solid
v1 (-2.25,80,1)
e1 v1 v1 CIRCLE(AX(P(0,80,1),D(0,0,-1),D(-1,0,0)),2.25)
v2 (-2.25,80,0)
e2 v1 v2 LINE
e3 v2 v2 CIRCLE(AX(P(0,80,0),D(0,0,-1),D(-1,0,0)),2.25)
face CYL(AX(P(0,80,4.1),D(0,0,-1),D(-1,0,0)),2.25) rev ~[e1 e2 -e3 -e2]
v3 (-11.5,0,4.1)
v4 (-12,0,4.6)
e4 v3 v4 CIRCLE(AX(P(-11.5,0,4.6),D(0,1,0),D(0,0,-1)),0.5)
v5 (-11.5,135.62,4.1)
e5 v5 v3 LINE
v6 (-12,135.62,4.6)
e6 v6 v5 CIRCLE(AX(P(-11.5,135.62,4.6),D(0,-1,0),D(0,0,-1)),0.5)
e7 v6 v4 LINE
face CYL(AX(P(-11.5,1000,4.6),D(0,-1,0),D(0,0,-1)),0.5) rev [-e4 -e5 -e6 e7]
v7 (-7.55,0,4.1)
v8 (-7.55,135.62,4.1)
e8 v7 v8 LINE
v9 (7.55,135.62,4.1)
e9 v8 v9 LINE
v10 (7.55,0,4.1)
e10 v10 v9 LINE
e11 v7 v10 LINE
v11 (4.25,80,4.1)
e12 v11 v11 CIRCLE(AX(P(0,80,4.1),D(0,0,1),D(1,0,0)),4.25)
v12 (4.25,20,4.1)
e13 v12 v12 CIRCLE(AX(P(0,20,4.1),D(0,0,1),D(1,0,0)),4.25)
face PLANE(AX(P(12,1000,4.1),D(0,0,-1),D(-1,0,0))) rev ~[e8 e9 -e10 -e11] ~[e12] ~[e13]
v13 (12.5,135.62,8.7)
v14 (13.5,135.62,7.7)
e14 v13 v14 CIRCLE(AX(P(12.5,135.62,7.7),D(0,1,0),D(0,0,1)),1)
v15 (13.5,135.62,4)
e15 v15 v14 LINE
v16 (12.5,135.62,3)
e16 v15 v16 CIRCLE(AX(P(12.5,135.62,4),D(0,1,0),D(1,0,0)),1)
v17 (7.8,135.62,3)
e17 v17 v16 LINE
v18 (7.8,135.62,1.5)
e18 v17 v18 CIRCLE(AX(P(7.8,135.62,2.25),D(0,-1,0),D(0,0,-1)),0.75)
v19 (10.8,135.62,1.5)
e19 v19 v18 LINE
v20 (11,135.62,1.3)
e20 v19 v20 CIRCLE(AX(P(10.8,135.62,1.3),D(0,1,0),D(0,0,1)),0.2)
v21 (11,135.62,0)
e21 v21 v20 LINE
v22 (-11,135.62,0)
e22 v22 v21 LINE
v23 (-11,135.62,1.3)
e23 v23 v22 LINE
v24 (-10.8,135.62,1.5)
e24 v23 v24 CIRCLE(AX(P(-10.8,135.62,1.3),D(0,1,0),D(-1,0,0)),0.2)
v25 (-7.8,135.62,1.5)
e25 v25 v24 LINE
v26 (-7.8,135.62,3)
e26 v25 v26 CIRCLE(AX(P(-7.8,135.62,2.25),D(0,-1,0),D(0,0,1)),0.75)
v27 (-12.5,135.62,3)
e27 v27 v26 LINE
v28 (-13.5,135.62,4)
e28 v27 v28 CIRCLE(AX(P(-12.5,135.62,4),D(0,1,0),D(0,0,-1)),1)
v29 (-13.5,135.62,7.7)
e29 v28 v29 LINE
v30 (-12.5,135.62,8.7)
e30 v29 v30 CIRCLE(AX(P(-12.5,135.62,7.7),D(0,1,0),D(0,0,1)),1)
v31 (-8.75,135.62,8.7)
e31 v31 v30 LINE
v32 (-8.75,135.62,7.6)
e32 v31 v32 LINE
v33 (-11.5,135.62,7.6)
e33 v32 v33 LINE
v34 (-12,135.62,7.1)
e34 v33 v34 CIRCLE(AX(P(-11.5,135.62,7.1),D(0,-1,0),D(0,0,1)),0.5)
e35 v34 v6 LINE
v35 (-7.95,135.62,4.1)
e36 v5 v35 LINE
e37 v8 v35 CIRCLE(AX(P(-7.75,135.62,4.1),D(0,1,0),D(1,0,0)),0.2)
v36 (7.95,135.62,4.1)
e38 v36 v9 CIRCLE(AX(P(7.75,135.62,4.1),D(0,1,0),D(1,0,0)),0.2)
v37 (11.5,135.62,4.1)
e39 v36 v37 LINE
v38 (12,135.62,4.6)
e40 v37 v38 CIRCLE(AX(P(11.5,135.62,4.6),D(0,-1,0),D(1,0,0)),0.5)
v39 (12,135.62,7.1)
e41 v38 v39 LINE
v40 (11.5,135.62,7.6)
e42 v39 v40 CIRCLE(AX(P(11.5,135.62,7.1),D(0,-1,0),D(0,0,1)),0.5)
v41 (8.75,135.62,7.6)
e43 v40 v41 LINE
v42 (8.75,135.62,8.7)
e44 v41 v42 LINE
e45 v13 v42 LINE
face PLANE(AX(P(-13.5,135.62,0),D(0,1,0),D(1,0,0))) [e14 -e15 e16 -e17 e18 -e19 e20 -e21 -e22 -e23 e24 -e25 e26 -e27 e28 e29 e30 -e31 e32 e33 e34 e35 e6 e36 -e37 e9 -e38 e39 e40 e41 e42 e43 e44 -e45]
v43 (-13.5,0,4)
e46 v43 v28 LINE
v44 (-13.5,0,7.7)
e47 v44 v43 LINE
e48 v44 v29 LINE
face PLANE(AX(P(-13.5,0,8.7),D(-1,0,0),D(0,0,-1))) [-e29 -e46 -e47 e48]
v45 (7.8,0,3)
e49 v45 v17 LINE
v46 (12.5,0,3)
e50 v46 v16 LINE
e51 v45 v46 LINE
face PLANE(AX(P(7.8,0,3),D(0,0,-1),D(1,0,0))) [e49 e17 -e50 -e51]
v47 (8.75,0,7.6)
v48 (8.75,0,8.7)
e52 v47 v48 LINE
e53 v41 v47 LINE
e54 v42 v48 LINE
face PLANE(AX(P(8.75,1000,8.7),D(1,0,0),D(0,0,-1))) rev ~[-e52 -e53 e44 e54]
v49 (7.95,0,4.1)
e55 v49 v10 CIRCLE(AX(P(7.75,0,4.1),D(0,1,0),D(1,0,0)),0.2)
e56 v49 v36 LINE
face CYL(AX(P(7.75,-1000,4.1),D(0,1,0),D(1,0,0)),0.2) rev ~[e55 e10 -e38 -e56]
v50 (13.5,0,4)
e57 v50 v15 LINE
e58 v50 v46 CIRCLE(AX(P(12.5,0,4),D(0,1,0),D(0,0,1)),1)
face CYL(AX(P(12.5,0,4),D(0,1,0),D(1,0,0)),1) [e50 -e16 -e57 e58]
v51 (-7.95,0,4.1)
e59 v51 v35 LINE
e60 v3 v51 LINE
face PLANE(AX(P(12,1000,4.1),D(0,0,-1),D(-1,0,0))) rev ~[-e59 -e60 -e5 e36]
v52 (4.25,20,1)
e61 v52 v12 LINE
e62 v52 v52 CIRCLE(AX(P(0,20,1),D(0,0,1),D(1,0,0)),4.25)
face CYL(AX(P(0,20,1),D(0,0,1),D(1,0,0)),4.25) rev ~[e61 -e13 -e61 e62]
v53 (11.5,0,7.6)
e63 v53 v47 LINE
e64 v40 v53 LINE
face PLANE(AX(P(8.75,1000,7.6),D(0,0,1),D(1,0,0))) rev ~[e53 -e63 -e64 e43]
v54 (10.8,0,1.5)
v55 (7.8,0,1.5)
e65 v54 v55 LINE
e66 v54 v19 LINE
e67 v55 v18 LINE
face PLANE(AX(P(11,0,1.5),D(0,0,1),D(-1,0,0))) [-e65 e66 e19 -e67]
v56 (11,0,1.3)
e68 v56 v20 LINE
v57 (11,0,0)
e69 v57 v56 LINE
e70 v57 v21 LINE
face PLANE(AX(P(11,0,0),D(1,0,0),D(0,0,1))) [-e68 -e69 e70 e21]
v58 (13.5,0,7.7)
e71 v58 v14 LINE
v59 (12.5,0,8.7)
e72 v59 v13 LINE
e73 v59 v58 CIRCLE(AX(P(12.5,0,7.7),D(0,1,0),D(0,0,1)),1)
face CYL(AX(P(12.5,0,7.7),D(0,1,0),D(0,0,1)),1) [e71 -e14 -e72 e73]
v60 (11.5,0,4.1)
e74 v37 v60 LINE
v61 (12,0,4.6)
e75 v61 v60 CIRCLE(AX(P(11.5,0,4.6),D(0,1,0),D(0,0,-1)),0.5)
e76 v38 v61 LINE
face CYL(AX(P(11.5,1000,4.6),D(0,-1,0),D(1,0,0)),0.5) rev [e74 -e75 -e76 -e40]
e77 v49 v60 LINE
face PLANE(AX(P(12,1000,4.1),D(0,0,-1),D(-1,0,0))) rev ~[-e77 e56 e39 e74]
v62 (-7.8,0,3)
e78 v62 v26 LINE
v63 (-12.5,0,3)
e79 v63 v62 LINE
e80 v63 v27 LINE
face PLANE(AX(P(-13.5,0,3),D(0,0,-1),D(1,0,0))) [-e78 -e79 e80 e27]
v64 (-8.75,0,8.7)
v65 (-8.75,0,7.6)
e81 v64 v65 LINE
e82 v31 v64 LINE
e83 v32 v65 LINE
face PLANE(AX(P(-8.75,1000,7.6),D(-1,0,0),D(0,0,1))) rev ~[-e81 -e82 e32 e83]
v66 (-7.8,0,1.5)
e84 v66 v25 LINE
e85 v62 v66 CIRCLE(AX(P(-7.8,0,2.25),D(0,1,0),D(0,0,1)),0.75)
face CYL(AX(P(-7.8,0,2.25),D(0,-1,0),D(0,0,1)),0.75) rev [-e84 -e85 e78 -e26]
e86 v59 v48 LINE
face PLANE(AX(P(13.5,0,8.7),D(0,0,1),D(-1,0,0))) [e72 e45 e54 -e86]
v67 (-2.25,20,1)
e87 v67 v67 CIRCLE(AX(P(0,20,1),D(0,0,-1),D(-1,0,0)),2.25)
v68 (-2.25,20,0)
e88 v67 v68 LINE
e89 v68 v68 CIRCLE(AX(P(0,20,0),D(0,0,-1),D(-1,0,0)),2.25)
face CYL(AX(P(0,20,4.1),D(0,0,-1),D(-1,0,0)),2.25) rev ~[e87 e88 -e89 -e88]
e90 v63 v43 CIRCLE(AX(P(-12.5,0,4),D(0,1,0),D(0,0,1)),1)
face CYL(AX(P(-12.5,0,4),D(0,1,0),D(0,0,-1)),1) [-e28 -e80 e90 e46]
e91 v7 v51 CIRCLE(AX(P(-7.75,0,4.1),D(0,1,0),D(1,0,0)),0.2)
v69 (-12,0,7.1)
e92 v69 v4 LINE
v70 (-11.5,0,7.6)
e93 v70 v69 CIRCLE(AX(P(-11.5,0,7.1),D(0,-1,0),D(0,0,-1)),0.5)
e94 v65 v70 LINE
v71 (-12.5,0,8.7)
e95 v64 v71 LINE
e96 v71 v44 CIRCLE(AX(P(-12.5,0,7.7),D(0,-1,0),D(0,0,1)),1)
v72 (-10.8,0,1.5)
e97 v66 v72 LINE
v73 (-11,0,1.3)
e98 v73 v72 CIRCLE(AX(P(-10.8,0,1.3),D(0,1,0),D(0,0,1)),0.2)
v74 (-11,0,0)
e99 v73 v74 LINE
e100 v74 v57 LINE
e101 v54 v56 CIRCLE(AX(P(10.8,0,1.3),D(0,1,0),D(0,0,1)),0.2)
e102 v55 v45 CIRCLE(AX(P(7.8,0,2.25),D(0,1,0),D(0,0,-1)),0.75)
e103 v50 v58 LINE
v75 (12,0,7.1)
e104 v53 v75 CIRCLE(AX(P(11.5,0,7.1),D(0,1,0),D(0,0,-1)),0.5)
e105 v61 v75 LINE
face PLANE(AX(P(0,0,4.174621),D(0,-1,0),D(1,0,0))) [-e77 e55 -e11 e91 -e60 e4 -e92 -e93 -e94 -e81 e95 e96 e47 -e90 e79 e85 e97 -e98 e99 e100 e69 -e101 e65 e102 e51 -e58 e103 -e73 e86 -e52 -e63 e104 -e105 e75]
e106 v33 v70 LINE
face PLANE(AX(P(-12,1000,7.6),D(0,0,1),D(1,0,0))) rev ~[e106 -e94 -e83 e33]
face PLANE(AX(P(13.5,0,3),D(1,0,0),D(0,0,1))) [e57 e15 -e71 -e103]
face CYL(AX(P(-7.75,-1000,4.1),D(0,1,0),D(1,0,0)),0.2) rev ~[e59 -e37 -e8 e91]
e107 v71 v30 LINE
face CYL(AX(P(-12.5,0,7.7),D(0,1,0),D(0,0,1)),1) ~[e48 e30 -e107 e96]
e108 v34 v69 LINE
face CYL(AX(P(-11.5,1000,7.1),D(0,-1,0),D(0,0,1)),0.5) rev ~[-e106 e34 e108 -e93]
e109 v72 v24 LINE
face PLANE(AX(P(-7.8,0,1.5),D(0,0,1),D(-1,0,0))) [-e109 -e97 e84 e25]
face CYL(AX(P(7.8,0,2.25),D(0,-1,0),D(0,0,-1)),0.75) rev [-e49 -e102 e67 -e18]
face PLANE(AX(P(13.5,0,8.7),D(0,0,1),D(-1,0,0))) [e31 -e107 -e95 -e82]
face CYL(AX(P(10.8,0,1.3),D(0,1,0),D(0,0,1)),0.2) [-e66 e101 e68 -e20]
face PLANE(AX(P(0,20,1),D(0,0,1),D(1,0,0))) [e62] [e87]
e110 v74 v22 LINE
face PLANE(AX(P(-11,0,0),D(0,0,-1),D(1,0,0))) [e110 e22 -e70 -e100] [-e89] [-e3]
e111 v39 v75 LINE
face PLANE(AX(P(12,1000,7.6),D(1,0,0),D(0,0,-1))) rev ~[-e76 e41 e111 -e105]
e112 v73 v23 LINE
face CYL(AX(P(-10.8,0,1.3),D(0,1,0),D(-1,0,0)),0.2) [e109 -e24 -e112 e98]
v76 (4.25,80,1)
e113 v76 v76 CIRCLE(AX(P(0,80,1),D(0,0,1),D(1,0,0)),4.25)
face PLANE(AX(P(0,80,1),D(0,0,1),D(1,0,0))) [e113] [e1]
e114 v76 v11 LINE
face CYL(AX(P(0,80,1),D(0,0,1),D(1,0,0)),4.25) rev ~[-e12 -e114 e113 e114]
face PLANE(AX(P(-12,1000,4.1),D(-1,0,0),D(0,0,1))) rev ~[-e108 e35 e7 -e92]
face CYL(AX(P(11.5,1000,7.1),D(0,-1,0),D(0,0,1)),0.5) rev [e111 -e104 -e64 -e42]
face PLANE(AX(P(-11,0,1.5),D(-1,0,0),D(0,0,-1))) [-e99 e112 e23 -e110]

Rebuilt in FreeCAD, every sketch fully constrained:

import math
import FreeCAD as App
import Part
import Sketcher


def edges_at(feature, points):
    """Names of the edges that pass closest to the given points."""
    edges = feature.Shape.Edges
    near = lambda p: min(range(len(edges)), key=lambda i: edges[i].distToShape(Part.Vertex(*p))[0])
    return sorted({f"Edge{near(p) + 1}" for p in points})


def add_polygon(sketch, points):
    """Adds a closed chain of lines whose ends are joined by coincident constraints."""
    first, n = sketch.GeometryCount, len(points)
    for a, b in zip(points, points[1:] + points[:1]):
        sketch.addGeometry(Part.LineSegment(App.Vector(*a, 0), App.Vector(*b, 0)), False)
    for i in range(n):
        sketch.addConstraint(Sketcher.Constraint("Coincident", first + i, 2, first + (i + 1) % n, 1))

doc = App.newDocument("Part")
body = doc.addObject("PartDesign::Body", "Body")

# Sketch on XZ plane
sketch1 = doc.addObject("Sketcher::SketchObject", "Sketch")
body.addObject(sketch1)
sketch1.AttachmentSupport = (doc.XZ_Plane, [""])
sketch1.MapMode = "FlatFace"
sketch1.addGeometry([
    Part.LineSegment(App.Vector(13.5, 8.7, 0), App.Vector(-13.5, 8.7, 0)),  # 0
    Part.LineSegment(App.Vector(-13.5, 8.7, 0), App.Vector(-13.5, 3, 0)),  # 1
    Part.LineSegment(App.Vector(-13.5, 3, 0), App.Vector(-7.8, 3, 0)),  # 2
    Part.ArcOfCircle(Part.Circle(App.Vector(-7.8, 2.2, 0), App.Vector(0, 0, 1), 0.8), math.radians(-90), math.radians(90)),  # 3
    Part.LineSegment(App.Vector(-7.8, 1.5, 0), App.Vector(-11, 1.5, 0)),  # 4
    Part.LineSegment(App.Vector(-11, 1.5, 0), App.Vector(-11, 0, 0)),  # 5
    Part.LineSegment(App.Vector(-11, 0, 0), App.Vector(11, 0, 0)),  # 6
    Part.LineSegment(App.Vector(11, 0, 0), App.Vector(11, 1.5, 0)),  # 7
    Part.LineSegment(App.Vector(11, 1.5, 0), App.Vector(7.8, 1.5, 0)),  # 8
    Part.ArcOfCircle(Part.Circle(App.Vector(7.8, 2.2, 0), App.Vector(0, 0, 1), 0.8), math.radians(90), math.radians(270)),  # 9
    Part.LineSegment(App.Vector(7.8, 3, 0), App.Vector(13.5, 3, 0)),  # 10
    Part.LineSegment(App.Vector(13.5, 3, 0), App.Vector(13.5, 8.7, 0)),  # 11
], False)
sketch1.addConstraint([
    Sketcher.Constraint("Coincident", 0, 2, 1, 1),
    Sketcher.Constraint("Coincident", 1, 2, 2, 1),
    Sketcher.Constraint("Tangent", 2, 2, 3, 2),
    Sketcher.Constraint("Tangent", 3, 1, 4, 1),
    Sketcher.Constraint("Coincident", 4, 2, 5, 1),
    Sketcher.Constraint("Coincident", 5, 2, 6, 1),
    Sketcher.Constraint("Coincident", 6, 2, 7, 1),
    Sketcher.Constraint("Coincident", 7, 2, 8, 1),
    Sketcher.Constraint("Tangent", 8, 2, 9, 2),
    Sketcher.Constraint("Tangent", 9, 1, 10, 1),
    Sketcher.Constraint("Coincident", 10, 2, 11, 1),
    Sketcher.Constraint("Coincident", 11, 2, 0, 1),
    Sketcher.Constraint("Horizontal", 0),
    Sketcher.Constraint("Vertical", 1),
    Sketcher.Constraint("Horizontal", 2),
    Sketcher.Constraint("Horizontal", 4),
    Sketcher.Constraint("Vertical", 5),
    Sketcher.Constraint("Horizontal", 6),
    Sketcher.Constraint("Vertical", 7),
    Sketcher.Constraint("Horizontal", 8),
    Sketcher.Constraint("Horizontal", 10),
    Sketcher.Constraint("Vertical", 11),
    Sketcher.Constraint("Equal", 3, 9),
    Sketcher.Constraint("Symmetric", 5, 2, 6, 2, -1, 1),
    Sketcher.Constraint("Symmetric", 3, 3, 9, 3, -2),
    Sketcher.Constraint("Equal", 2, 10),
    Sketcher.Constraint("Equal", 10, 1),
    Sketcher.Constraint("DistanceX", 0, 2, 0, 1, 27.0),
    Sketcher.Constraint("DistanceX", 6, 1, 6, 2, 22.0),
    Sketcher.Constraint("Radius", 3, 0.75),
    Sketcher.Constraint("DistanceX", 2, 1, 2, 2, 5.7),
    Sketcher.Constraint("DistanceY", 5, 2, 5, 1, 1.5),
])
pad1 = doc.addObject("PartDesign::Pad", "Pad")
body.addObject(pad1)
pad1.Profile = sketch1
pad1.Length = 1000
pad1.Reversed = True

# Sketch on XZ plane
sketch2 = doc.addObject("Sketcher::SketchObject", "Sketch001")
body.addObject(sketch2)
sketch2.AttachmentSupport = (doc.XZ_Plane, [""])
sketch2.MapMode = "FlatFace"
sketch2.AttachmentOffset = App.Placement(App.Vector(0, 0, -1000), App.Rotation())
add_polygon(sketch2, [(-8.8, 8.7), (8.8, 8.7), (8.8, 7.6), (12, 7.6), (12, 4.1), (-12, 4.1), (-12, 7.6), (-8.8, 7.6)])  # lines 0-7
sketch2.addConstraint([
    Sketcher.Constraint("Horizontal", 0),
    Sketcher.Constraint("Vertical", 1),
    Sketcher.Constraint("Horizontal", 2),
    Sketcher.Constraint("Vertical", 3),
    Sketcher.Constraint("Horizontal", 4),
    Sketcher.Constraint("Vertical", 5),
    Sketcher.Constraint("Horizontal", 6),
    Sketcher.Constraint("Vertical", 7),
    Sketcher.Constraint("Symmetric", 2, 2, 5, 2, -2),
    Sketcher.Constraint("Equal", 2, 6),
    Sketcher.Constraint("DistanceX", 4, 2, 4, 1, 24.0),
    Sketcher.Constraint("DistanceX", 0, 1, 0, 2, 17.5),
    Sketcher.Constraint("DistanceY", 1, 2, 1, 1, 1.1),
    Sketcher.Constraint("DistanceY", 3, 2, 3, 1, 3.5),
    Sketcher.Constraint("DistanceY", -1, 1, 0, 2, 8.7),
])
pocket1 = doc.addObject("PartDesign::Pocket", "Pocket")
body.addObject(pocket1)
pocket1.Profile = sketch2
pocket1.Type = "ThroughAll"
pocket1.Reversed = True

# Sketch on XY plane
sketch3 = doc.addObject("Sketcher::SketchObject", "Sketch002")
body.addObject(sketch3)
sketch3.AttachmentSupport = (doc.XY_Plane, [""])
sketch3.MapMode = "FlatFace"
sketch3.AttachmentOffset = App.Placement(App.Vector(0, 0, 4.1), App.Rotation())
sketch3.addGeometry([
    Part.Circle(App.Vector(0, 980, 0), App.Vector(0, 0, 1), 2.2),  # 0
    Part.Circle(App.Vector(0, 920, 0), App.Vector(0, 0, 1), 2.2),  # 1
    Part.Circle(App.Vector(0, 860, 0), App.Vector(0, 0, 1), 2.2),  # 2
    Part.Circle(App.Vector(0, 800, 0), App.Vector(0, 0, 1), 2.2),  # 3
    Part.Circle(App.Vector(0, 740, 0), App.Vector(0, 0, 1), 2.2),  # 4
    Part.Circle(App.Vector(0, 680, 0), App.Vector(0, 0, 1), 2.2),  # 5
    Part.Circle(App.Vector(0, 620, 0), App.Vector(0, 0, 1), 2.2),  # 6
    Part.Circle(App.Vector(0, 560, 0), App.Vector(0, 0, 1), 2.2),  # 7
    Part.Circle(App.Vector(0, 500, 0), App.Vector(0, 0, 1), 2.2),  # 8
    Part.Circle(App.Vector(0, 440, 0), App.Vector(0, 0, 1), 2.2),  # 9
    Part.Circle(App.Vector(0, 380, 0), App.Vector(0, 0, 1), 2.2),  # 10
    Part.Circle(App.Vector(0, 320, 0), App.Vector(0, 0, 1), 2.2),  # 11
    Part.Circle(App.Vector(0, 260, 0), App.Vector(0, 0, 1), 2.2),  # 12
    Part.Circle(App.Vector(0, 200, 0), App.Vector(0, 0, 1), 2.2),  # 13
    Part.Circle(App.Vector(0, 140, 0), App.Vector(0, 0, 1), 2.2),  # 14
    Part.Circle(App.Vector(0, 80, 0), App.Vector(0, 0, 1), 2.2),  # 15
    Part.Circle(App.Vector(0, 20, 0), App.Vector(0, 0, 1), 2.2),  # 16
], False)
sketch3.addConstraint([
    Sketcher.Constraint("Equal", 0, 1),
    Sketcher.Constraint("Equal", 1, 2),
    Sketcher.Constraint("Equal", 2, 3),
    Sketcher.Constraint("Equal", 3, 4),
    Sketcher.Constraint("Equal", 4, 5),
    Sketcher.Constraint("Equal", 5, 6),
    Sketcher.Constraint("Equal", 6, 7),
    Sketcher.Constraint("Equal", 7, 8),
    Sketcher.Constraint("Equal", 8, 9),
    Sketcher.Constraint("Equal", 9, 10),
    Sketcher.Constraint("Equal", 10, 11),
    Sketcher.Constraint("Equal", 11, 12),
    Sketcher.Constraint("Equal", 12, 13),
    Sketcher.Constraint("Equal", 13, 14),
    Sketcher.Constraint("Equal", 14, 15),
    Sketcher.Constraint("Equal", 15, 16),
    Sketcher.Constraint("PointOnObject", 0, 3, -2),
    Sketcher.Constraint("PointOnObject", 1, 3, -2),
    Sketcher.Constraint("PointOnObject", 2, 3, -2),
    Sketcher.Constraint("PointOnObject", 3, 3, -2),
    Sketcher.Constraint("PointOnObject", 4, 3, -2),
    Sketcher.Constraint("PointOnObject", 5, 3, -2),
    Sketcher.Constraint("PointOnObject", 6, 3, -2),
    Sketcher.Constraint("PointOnObject", 7, 3, -2),
    Sketcher.Constraint("PointOnObject", 8, 3, -2),
    Sketcher.Constraint("PointOnObject", 9, 3, -2),
    Sketcher.Constraint("PointOnObject", 10, 3, -2),
    Sketcher.Constraint("PointOnObject", 11, 3, -2),
    Sketcher.Constraint("PointOnObject", 12, 3, -2),
    Sketcher.Constraint("PointOnObject", 13, 3, -2),
    Sketcher.Constraint("PointOnObject", 14, 3, -2),
    Sketcher.Constraint("PointOnObject", 15, 3, -2),
    Sketcher.Constraint("PointOnObject", 16, 3, -2),
    Sketcher.Constraint("Diameter", 0, 4.5),
    Sketcher.Constraint("DistanceY", -1, 1, 0, 3, 980.0),
    Sketcher.Constraint("DistanceY", -1, 1, 1, 3, 920.0),
    Sketcher.Constraint("DistanceY", -1, 1, 2, 3, 860.0),
    Sketcher.Constraint("DistanceY", -1, 1, 3, 3, 800.0),
    Sketcher.Constraint("DistanceY", -1, 1, 4, 3, 740.0),
    Sketcher.Constraint("DistanceY", -1, 1, 5, 3, 680.0),
    Sketcher.Constraint("DistanceY", -1, 1, 6, 3, 620.0),
    Sketcher.Constraint("DistanceY", -1, 1, 7, 3, 560.0),
    Sketcher.Constraint("DistanceY", -1, 1, 8, 3, 500.0),
    Sketcher.Constraint("DistanceY", -1, 1, 9, 3, 440.0),
    Sketcher.Constraint("DistanceY", -1, 1, 10, 3, 380.0),
    Sketcher.Constraint("DistanceY", -1, 1, 11, 3, 320.0),
    Sketcher.Constraint("DistanceY", -1, 1, 12, 3, 260.0),
    Sketcher.Constraint("DistanceY", -1, 1, 13, 3, 200.0),
    Sketcher.Constraint("DistanceY", -1, 1, 14, 3, 140.0),
    Sketcher.Constraint("DistanceY", -1, 1, 15, 3, 80.0),
    Sketcher.Constraint("DistanceY", -1, 1, 16, 3, 20.0),
])
doc.recompute()
hole = doc.addObject("PartDesign::Hole", "Hole")
body.addObject(hole)
hole.Profile = sketch3
hole.ThreadType = "None"
hole.Diameter = 4.5
hole.DepthType = "Dimension"
hole.Depth = 4.1
hole.DrillPoint = "Flat"
hole.HoleCutType = "Counterbore"
hole.HoleCutDiameter = 8.5
hole.HoleCutDepth = 3.1

# Sketch on XZ plane
sketch4 = doc.addObject("Sketcher::SketchObject", "Sketch003")
body.addObject(sketch4)
sketch4.AttachmentSupport = (doc.XZ_Plane, [""])
sketch4.MapMode = "FlatFace"
sketch4.addGeometry([
    Part.Circle(App.Vector(-7.75, 4.1, 0), App.Vector(0, 0, 1), 0.2),
    Part.Circle(App.Vector(7.75, 4.1, 0), App.Vector(0, 0, 1), 0.2),
], False)
sketch4.addConstraint([
    Sketcher.Constraint("Equal", 0, 1),
    Sketcher.Constraint("Symmetric", 0, 3, 1, 3, -2),
    Sketcher.Constraint("Diameter", 0, 0.4),
    Sketcher.Constraint("DistanceY", -1, 1, 0, 3, 4.1),
    Sketcher.Constraint("DistanceX", 0, 3, 1, 3, 15.5),
])
doc.recompute()
hole2 = doc.addObject("PartDesign::Hole", "Hole001")
body.addObject(hole2)
hole2.Profile = sketch4
hole2.ThreadType = "None"
hole2.Diameter = 0.4
hole2.DepthType = "Dimension"
hole2.Depth = 1000
hole2.DrillPoint = "Flat"
doc.recompute()

fillet = doc.addObject("PartDesign::Fillet", "Fillet")
body.addObject(fillet)
fillet.Base = (hole2, edges_at(hole2, [(11, 500, 1.5), (-11, 500, 1.5)]))
fillet.Radius = 0.2
doc.recompute()

fillet2 = doc.addObject("PartDesign::Fillet", "Fillet001")
body.addObject(fillet2)
fillet2.Base = (fillet, edges_at(fillet, [
    (-12, 500, 7.6),
    (-12, 500, 4.1),
    (12, 500, 4.1),
    (12, 500, 7.6),
]))
fillet2.Radius = 0.5
doc.recompute()

fillet3 = doc.addObject("PartDesign::Fillet", "Fillet002")
body.addObject(fillet3)
fillet3.Base = (fillet2, edges_at(fillet2, [
    (13.5, 500, 3),
    (-13.5, 500, 3),
    (-13.5, 500, 8.7),
    (13.5, 500, 8.7),
]))
fillet3.Radius = 1

# Sketch on XY plane
sketch5 = doc.addObject("Sketcher::SketchObject", "Sketch004")
body.addObject(sketch5)
sketch5.AttachmentSupport = (doc.XY_Plane, [""])
sketch5.MapMode = "FlatFace"
add_polygon(sketch5, [(-14, 1000), (-14, 136), (14, 136), (14, 1000)])  # lines 0-3
sketch5.addConstraint([
    Sketcher.Constraint("Vertical", 0),
    Sketcher.Constraint("Horizontal", 1),
    Sketcher.Constraint("Vertical", 2),
    Sketcher.Constraint("Horizontal", 3),
    Sketcher.Constraint("DistanceX", 1, 1, 1, 2, 27.0),
    Sketcher.Constraint("DistanceY", -1, 1, 2, 2, 1000.0),
    Sketcher.Constraint("DistanceY", 0, 2, 0, 1, 864.38),
    Sketcher.Constraint("DistanceX", 0, 2, -1, 1, 13.5),
])
pocket2 = doc.addObject("PartDesign::Pocket", "Pocket001")
body.addObject(pocket2)
pocket2.Profile = sketch5
pocket2.Type = "ThroughAll"
pocket2.Midplane = True

doc.recompute()
